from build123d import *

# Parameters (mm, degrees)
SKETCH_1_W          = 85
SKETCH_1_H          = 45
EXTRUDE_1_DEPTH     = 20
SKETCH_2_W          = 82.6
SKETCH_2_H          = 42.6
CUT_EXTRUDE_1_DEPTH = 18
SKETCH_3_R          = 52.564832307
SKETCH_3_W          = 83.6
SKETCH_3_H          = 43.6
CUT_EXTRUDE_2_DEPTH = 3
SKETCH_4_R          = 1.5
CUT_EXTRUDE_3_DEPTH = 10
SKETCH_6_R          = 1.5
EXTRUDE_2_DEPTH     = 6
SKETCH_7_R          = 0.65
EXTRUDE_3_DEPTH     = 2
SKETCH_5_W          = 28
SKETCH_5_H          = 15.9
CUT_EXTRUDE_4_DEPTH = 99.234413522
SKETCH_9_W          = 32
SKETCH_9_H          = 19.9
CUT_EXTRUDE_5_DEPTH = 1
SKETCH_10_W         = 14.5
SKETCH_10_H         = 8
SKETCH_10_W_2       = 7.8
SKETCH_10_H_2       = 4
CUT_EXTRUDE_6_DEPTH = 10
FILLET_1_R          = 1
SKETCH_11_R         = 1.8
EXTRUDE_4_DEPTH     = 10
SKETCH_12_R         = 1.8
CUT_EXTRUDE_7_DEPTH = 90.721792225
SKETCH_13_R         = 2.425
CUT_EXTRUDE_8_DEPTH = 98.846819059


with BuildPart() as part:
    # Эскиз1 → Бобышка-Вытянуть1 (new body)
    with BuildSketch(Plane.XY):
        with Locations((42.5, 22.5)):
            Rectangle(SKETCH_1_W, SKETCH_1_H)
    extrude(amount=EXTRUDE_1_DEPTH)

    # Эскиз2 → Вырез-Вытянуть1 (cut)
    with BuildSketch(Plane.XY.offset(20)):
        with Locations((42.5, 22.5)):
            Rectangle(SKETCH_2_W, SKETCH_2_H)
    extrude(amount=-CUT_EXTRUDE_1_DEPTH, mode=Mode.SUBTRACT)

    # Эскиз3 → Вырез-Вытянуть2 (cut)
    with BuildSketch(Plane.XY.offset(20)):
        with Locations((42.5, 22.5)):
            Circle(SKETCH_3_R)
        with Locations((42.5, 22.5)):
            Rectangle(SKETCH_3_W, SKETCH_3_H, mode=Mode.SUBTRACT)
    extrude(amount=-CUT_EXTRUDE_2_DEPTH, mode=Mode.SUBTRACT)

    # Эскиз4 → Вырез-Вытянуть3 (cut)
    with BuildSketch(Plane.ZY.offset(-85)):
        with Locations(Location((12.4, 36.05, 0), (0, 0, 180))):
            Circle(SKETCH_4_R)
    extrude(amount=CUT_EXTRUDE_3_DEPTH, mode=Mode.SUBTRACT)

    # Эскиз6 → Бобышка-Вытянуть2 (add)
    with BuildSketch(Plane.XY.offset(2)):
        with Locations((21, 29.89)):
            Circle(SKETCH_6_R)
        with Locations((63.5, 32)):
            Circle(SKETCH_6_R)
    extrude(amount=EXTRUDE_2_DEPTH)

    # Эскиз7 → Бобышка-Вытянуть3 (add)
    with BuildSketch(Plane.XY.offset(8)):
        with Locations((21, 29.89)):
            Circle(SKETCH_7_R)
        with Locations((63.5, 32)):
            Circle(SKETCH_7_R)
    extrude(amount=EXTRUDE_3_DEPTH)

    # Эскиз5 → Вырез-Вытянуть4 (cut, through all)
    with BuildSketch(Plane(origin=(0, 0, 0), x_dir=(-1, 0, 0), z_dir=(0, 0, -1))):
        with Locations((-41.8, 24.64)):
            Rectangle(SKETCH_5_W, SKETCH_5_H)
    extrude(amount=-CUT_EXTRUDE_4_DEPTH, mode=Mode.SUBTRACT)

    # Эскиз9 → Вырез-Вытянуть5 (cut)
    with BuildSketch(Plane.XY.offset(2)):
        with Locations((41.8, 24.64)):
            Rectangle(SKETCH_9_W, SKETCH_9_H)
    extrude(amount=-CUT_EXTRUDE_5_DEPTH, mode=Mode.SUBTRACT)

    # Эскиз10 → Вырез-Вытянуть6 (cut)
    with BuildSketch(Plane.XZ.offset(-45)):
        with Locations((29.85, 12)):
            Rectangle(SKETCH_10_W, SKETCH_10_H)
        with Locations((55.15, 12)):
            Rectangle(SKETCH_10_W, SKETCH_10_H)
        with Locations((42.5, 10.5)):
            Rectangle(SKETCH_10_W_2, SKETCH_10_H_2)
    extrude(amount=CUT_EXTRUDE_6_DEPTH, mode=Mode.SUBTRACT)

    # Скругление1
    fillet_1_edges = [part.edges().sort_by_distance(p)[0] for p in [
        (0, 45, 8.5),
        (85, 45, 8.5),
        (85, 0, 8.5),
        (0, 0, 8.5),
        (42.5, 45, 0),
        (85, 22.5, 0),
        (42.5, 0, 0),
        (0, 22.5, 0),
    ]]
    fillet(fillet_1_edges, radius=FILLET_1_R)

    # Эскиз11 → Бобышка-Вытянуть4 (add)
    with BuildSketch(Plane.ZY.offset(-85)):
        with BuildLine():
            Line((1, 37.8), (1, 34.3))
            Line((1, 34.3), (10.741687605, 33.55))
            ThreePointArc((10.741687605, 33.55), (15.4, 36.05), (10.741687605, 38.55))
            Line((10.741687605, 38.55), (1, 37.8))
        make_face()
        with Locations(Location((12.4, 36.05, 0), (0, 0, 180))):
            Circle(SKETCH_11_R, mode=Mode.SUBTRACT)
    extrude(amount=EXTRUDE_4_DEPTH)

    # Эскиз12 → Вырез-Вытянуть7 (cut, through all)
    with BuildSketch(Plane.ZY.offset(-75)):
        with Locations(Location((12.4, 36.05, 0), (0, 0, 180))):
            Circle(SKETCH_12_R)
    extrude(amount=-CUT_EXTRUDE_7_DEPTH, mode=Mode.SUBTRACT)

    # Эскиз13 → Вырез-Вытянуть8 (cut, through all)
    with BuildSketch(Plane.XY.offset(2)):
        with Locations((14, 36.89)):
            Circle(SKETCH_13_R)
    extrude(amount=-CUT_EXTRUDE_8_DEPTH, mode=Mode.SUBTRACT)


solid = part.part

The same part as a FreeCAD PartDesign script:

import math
import FreeCAD as App
import Part
import Sketcher
from FreeCAD import Vector


def edges_at(feature, points):
    """Names of the edges that pass closest to the given points."""
    edges = feature.Shape.Edges
    near = lambda p: min(range(len(edges)), key=lambda i: edges[i].distToShape(Part.Vertex(*p))[0])
    return sorted({f"Edge{near(p) + 1}" for p in points})

doc = App.newDocument("Part")
params = doc.addObject("Spreadsheet::Sheet", "Params")
for row, (alias, value) in enumerate([
    ("sketch1_width", "85 mm"),
    ("sketch1_height", "45 mm"),
    ("pad1_length", "20 mm"),
    ("sketch2_width", "82.6 mm"),
    ("sketch2_height", "42.6 mm"),
    ("pocket1_length", "18 mm"),
    ("sketch3_width", "83.6 mm"),
    ("sketch3_height", "43.6 mm"),
    ("pocket2_length", "3 mm"),
    ("sketch4_diameter", "3 mm"),
    ("pocket3_length", "10 mm"),
    ("sketch5_diameter", "3 mm"),
    ("pad2_length", "6 mm"),
    ("sketch6_diameter", "1.3 mm"),
    ("pad3_length", "2 mm"),
    ("sketch7_width", "28 mm"),
    ("sketch7_height", "15.9 mm"),
    ("sketch8_width", "32 mm"),
    ("sketch8_height", "19.9 mm"),
    ("pocket5_length", "1 mm"),
    ("sketch9_height", "8 mm"),
    ("sketch9_height2", "4 mm"),
    ("sketch9_width", "14.5 mm"),
    ("sketch9_width2", "7.8 mm"),
    ("pocket6_length", "10 mm"),
    ("fillet_radius", "1 mm"),
    ("sketch10_radius", "3 mm"),
    ("sketch10_diameter", "3.6 mm"),
    ("sketch10_width", "3.5 mm"),
    ("pad4_length", "10 mm"),
    ("sketch11_diameter", "3.6 mm"),
    ("sketch12_diameter", "4.85 mm"),
], start=1):
    params.set(f"A{row}", alias)
    params.set(f"B{row}", "=" + value)
    params.setAlias(f"B{row}", alias)

body = doc.addObject("PartDesign::Body", "Body")

# Sketch on XY plane
sketch1 = doc.addObject("Sketcher::SketchObject", "Sketch")
body.addObject(sketch1)
sketch1.AttachmentSupport = (doc.XY_Plane, [""])
sketch1.MapMode = "FlatFace"
sketch1.addGeometry(Part.LineSegment(Vector(0, 45, 0), Vector(0, 0, 0)), False)
sketch1.addGeometry(Part.LineSegment(Vector(0, 0, 0), Vector(85, 0, 0)), False)
sketch1.addGeometry(Part.LineSegment(Vector(85, 0, 0), Vector(85, 45, 0)), False)
sketch1.addGeometry(Part.LineSegment(Vector(85, 45, 0), Vector(0, 45, 0)), False)
sketch1.addConstraint(Sketcher.Constraint("Coincident", 0, 2, 1, 1))
sketch1.addConstraint(Sketcher.Constraint("Coincident", 1, 2, 2, 1))
sketch1.addConstraint(Sketcher.Constraint("Coincident", 2, 2, 3, 1))
sketch1.addConstraint(Sketcher.Constraint("Coincident", 3, 2, 0, 1))
sketch1.addConstraint(Sketcher.Constraint("Vertical", 0))
sketch1.addConstraint(Sketcher.Constraint("Horizontal", 1))
sketch1.addConstraint(Sketcher.Constraint("Vertical", 2))
sketch1.addConstraint(Sketcher.Constraint("Horizontal", 3))
sketch1.addConstraint(Sketcher.Constraint("Coincident", 0, 2, -1, 1))
sketch1.addConstraint(Sketcher.Constraint("DistanceX", 1, 1, 1, 2, 85.0))
sketch1.addConstraint(Sketcher.Constraint("DistanceY", 0, 2, 0, 1, 45.0))
sketch1.setExpression("Constraints[9]", "Params.sketch1_width")
sketch1.setExpression("Constraints[10]", "Params.sketch1_height")
pad1 = doc.addObject("PartDesign::Pad", "Pad")
body.addObject(pad1)
pad1.Profile = sketch1
pad1.setExpression("Length", "Params.pad1_length")

# Sketch on XY plane
sketch2 = doc.addObject("Sketcher::SketchObject", "Sketch001")
body.addObject(sketch2)
sketch2.AttachmentSupport = (doc.XY_Plane, [""])
sketch2.MapMode = "FlatFace"
sketch2.AttachmentOffset = App.Placement(Vector(0, 0, 20), App.Rotation())
sketch2.addGeometry(Part.LineSegment(Vector(1.2, 43.8, 0), Vector(1.2, 1.2, 0)), False)
sketch2.addGeometry(Part.LineSegment(Vector(1.2, 1.2, 0), Vector(83.8, 1.2, 0)), False)
sketch2.addGeometry(Part.LineSegment(Vector(83.8, 1.2, 0), Vector(83.8, 43.8, 0)), False)
sketch2.addGeometry(Part.LineSegment(Vector(83.8, 43.8, 0), Vector(1.2, 43.8, 0)), False)
sketch2.addConstraint(Sketcher.Constraint("Coincident", 0, 2, 1, 1))
sketch2.addConstraint(Sketcher.Constraint("Coincident", 1, 2, 2, 1))
sketch2.addConstraint(Sketcher.Constraint("Coincident", 2, 2, 3, 1))
sketch2.addConstraint(Sketcher.Constraint("Coincident", 3, 2, 0, 1))
sketch2.addConstraint(Sketcher.Constraint("Vertical", 0))
sketch2.addConstraint(Sketcher.Constraint("Horizontal", 1))
sketch2.addConstraint(Sketcher.Constraint("Vertical", 2))
sketch2.addConstraint(Sketcher.Constraint("Horizontal", 3))
sketch2.addConstraint(Sketcher.Constraint("DistanceX", 1, 1, 1, 2, 82.6))
sketch2.addConstraint(Sketcher.Constraint("DistanceY", 0, 2, 0, 1, 42.6))
sketch2.addConstraint(Sketcher.Constraint("DistanceX", -1, 1, 0, 2, 1.2))
sketch2.addConstraint(Sketcher.Constraint("DistanceY", -1, 1, 0, 2, 1.2))
sketch2.setExpression("Constraints[8]", "Params.sketch2_width")
sketch2.setExpression("Constraints[9]", "Params.sketch2_height")
pocket1 = doc.addObject("PartDesign::Pocket", "Pocket")
body.addObject(pocket1)
pocket1.Profile = sketch2
pocket1.setExpression("Length", "Params.pocket1_length")

# Sketch on XY plane
sketch3 = doc.addObject("Sketcher::SketchObject", "Sketch002")
body.addObject(sketch3)
sketch3.AttachmentSupport = (doc.XY_Plane, [""])
sketch3.MapMode = "FlatFace"
sketch3.AttachmentOffset = App.Placement(Vector(0, 0, 20), App.Rotation())
sketch3.addGeometry(Part.Circle(Vector(42.5, 22.5, 0), Vector(0, 0, 1), 52.564832), False)
sketch3.addGeometry(Part.LineSegment(Vector(84.3, 0.7, 0), Vector(0.7, 0.7, 0)), False)
sketch3.addGeometry(Part.LineSegment(Vector(0.7, 0.7, 0), Vector(0.7, 44.3, 0)), False)
sketch3.addGeometry(Part.LineSegment(Vector(0.7, 44.3, 0), Vector(84.3, 44.3, 0)), False)
sketch3.addGeometry(Part.LineSegment(Vector(84.3, 44.3, 0), Vector(84.3, 0.7, 0)), False)
sketch3.addConstraint(Sketcher.Constraint("Coincident", 1, 2, 2, 1))
sketch3.addConstraint(Sketcher.Constraint("Coincident", 2, 2, 3, 1))
sketch3.addConstraint(Sketcher.Constraint("Coincident", 3, 2, 4, 1))
sketch3.addConstraint(Sketcher.Constraint("Coincident", 4, 2, 1, 1))
sketch3.addConstraint(Sketcher.Constraint("Horizontal", 1))
sketch3.addConstraint(Sketcher.Constraint("Vertical", 2))
sketch3.addConstraint(Sketcher.Constraint("Horizontal", 3))
sketch3.addConstraint(Sketcher.Constraint("Vertical", 4))
sketch3.addConstraint(Sketcher.Constraint("DistanceX", 1, 2, 1, 1, 83.6))
sketch3.addConstraint(Sketcher.Constraint("DistanceY", 2, 1, 2, 2, 43.6))
sketch3.addConstraint(Sketcher.Constraint("DistanceX", -1, 1, 0, 3, 42.5))
sketch3.addConstraint(Sketcher.Constraint("DistanceY", -1, 1, 0, 3, 22.5))
sketch3.addConstraint(Sketcher.Constraint("DistanceX", -1, 1, 1, 2, 0.7))
sketch3.addConstraint(Sketcher.Constraint("DistanceY", -1, 1, 1, 2, 0.7))
sketch3.addConstraint(Sketcher.Constraint("Diameter", 0, 105.129665))
sketch3.setExpression("Constraints[8]", "Params.sketch3_width")
sketch3.setExpression("Constraints[9]", "Params.sketch3_height")
pocket2 = doc.addObject("PartDesign::Pocket", "Pocket001")
body.addObject(pocket2)
pocket2.Profile = sketch3
pocket2.setExpression("Length", "Params.pocket2_length")

# Sketch on YZ plane
sketch4 = doc.addObject("Sketcher::SketchObject", "Sketch003")
body.addObject(sketch4)
sketch4.AttachmentSupport = (doc.YZ_Plane, [""])
sketch4.MapMode = "FlatFace"
sketch4.AttachmentOffset = App.Placement(Vector(0, 0, 85), App.Rotation())
sketch4.addGeometry(Part.Circle(Vector(36.05, 12.4, 0), Vector(0, 0, 1), 1.5), False)
sketch4.addConstraint(Sketcher.Constraint("Diameter", 0, 3.0))
sketch4.addConstraint(Sketcher.Constraint("DistanceY", -1, 1, 0, 3, 12.4))
sketch4.addConstraint(Sketcher.Constraint("DistanceX", -1, 1, 0, 3, 36.05))
sketch4.setExpression("Constraints[0]", "Params.sketch4_diameter")
pocket3 = doc.addObject("PartDesign::Pocket", "Pocket002")
body.addObject(pocket3)
pocket3.Profile = sketch4
pocket3.setExpression("Length", "Params.pocket3_length")

# Sketch on XY plane
sketch5 = doc.addObject("Sketcher::SketchObject", "Sketch004")
body.addObject(sketch5)
sketch5.AttachmentSupport = (doc.XY_Plane, [""])
sketch5.MapMode = "FlatFace"
sketch5.AttachmentOffset = App.Placement(Vector(0, 0, 2), App.Rotation())
sketch5.addGeometry(Part.Circle(Vector(21, 29.89, 0), Vector(0, 0, 1), 1.5), False)
sketch5.addGeometry(Part.Circle(Vector(63.5, 32, 0), Vector(0, 0, 1), 1.5), False)
sketch5.addConstraint(Sketcher.Constraint("Equal", 0, 1))
sketch5.addConstraint(Sketcher.Constraint("Diameter", 0, 3.0))
sketch5.addConstraint(Sketcher.Constraint("DistanceX", -1, 1, 0, 3, 21.0))
sketch5.addConstraint(Sketcher.Constraint("DistanceY", -1, 1, 1, 3, 32.0))
sketch5.addConstraint(Sketcher.Constraint("DistanceX", -1, 1, 1, 3, 63.5))
sketch5.addConstraint(Sketcher.Constraint("DistanceY", -1, 1, 0, 3, 29.89))
sketch5.setExpression("Constraints[1]", "Params.sketch5_diameter")
pad2 = doc.addObject("PartDesign::Pad", "Pad001")
body.addObject(pad2)
pad2.Profile = sketch5
pad2.setExpression("Length", "Params.pad2_length")

# Sketch on XY plane
sketch6 = doc.addObject("Sketcher::SketchObject", "Sketch005")
body.addObject(sketch6)
sketch6.AttachmentSupport = (doc.XY_Plane, [""])
sketch6.MapMode = "FlatFace"
sketch6.AttachmentOffset = App.Placement(Vector(0, 0, 8), App.Rotation())
sketch6.addGeometry(Part.Circle(Vector(21, 29.89, 0), Vector(0, 0, 1), 0.65), False)
sketch6.addGeometry(Part.Circle(Vector(63.5, 32, 0), Vector(0, 0, 1), 0.65), False)
sketch6.addConstraint(Sketcher.Constraint("Equal", 0, 1))
sketch6.addConstraint(Sketcher.Constraint("Diameter", 0, 1.3))
sketch6.addConstraint(Sketcher.Constraint("DistanceX", -1, 1, 0, 3, 21.0))
sketch6.addConstraint(Sketcher.Constraint("DistanceY", -1, 1, 1, 3, 32.0))
sketch6.addConstraint(Sketcher.Constraint("DistanceX", -1, 1, 1, 3, 63.5))
sketch6.addConstraint(Sketcher.Constraint("DistanceY", -1, 1, 0, 3, 29.89))
sketch6.setExpression("Constraints[1]", "Params.sketch6_diameter")
pad3 = doc.addObject("PartDesign::Pad", "Pad002")
body.addObject(pad3)
pad3.Profile = sketch6
pad3.setExpression("Length", "Params.pad3_length")

# Sketch on XY plane
sketch7 = doc.addObject("Sketcher::SketchObject", "Sketch006")
body.addObject(sketch7)
sketch7.AttachmentSupport = (doc.XY_Plane, [""])
sketch7.MapMode = "FlatFace"
sketch7.addGeometry(Part.LineSegment(Vector(55.8, 32.59, 0), Vector(55.8, 16.69, 0)), False)
sketch7.addGeometry(Part.LineSegment(Vector(55.8, 16.69, 0), Vector(27.8, 16.69, 0)), False)
sketch7.addGeometry(Part.LineSegment(Vector(27.8, 16.69, 0), Vector(27.8, 32.59, 0)), False)
sketch7.addGeometry(Part.LineSegment(Vector(27.8, 32.59, 0), Vector(55.8, 32.59, 0)), False)
sketch7.addConstraint(Sketcher.Constraint("Coincident", 0, 2, 1, 1))
sketch7.addConstraint(Sketcher.Constraint("Coincident", 1, 2, 2, 1))
sketch7.addConstraint(Sketcher.Constraint("Coincident", 2, 2, 3, 1))
sketch7.addConstraint(Sketcher.Constraint("Coincident", 3, 2, 0, 1))
sketch7.addConstraint(Sketcher.Constraint("Vertical", 0))
sketch7.addConstraint(Sketcher.Constraint("Horizontal", 1))
sketch7.addConstraint(Sketcher.Constraint("Vertical", 2))
sketch7.addConstraint(Sketcher.Constraint("Horizontal", 3))
sketch7.addConstraint(Sketcher.Constraint("DistanceX", 1, 2, 1, 1, 28.0))
sketch7.addConstraint(Sketcher.Constraint("DistanceY", 0, 2, 0, 1, 15.9))
sketch7.addConstraint(Sketcher.Constraint("DistanceX", -1, 1, 0, 2, 55.8))
sketch7.addConstraint(Sketcher.Constraint("DistanceY", -1, 1, 0, 2, 16.69))
sketch7.setExpression("Constraints[8]", "Params.sketch7_width")
sketch7.setExpression("Constraints[9]", "Params.sketch7_height")
pocket4 = doc.addObject("PartDesign::Pocket", "Pocket003")
body.addObject(pocket4)
pocket4.Profile = sketch7
pocket4.Type = "ThroughAll"
pocket4.Reversed = True

# Sketch on XY plane
sketch8 = doc.addObject("Sketcher::SketchObject", "Sketch007")
body.addObject(sketch8)
sketch8.AttachmentSupport = (doc.XY_Plane, [""])
sketch8.MapMode = "FlatFace"
sketch8.AttachmentOffset = App.Placement(Vector(0, 0, 2), App.Rotation())
sketch8.addGeometry(Part.LineSegment(Vector(25.8, 34.59, 0), Vector(25.8, 14.69, 0)), False)
sketch8.addGeometry(Part.LineSegment(Vector(25.8, 14.69, 0), Vector(57.8, 14.69, 0)), False)
sketch8.addGeometry(Part.LineSegment(Vector(57.8, 14.69, 0), Vector(57.8, 34.59, 0)), False)
sketch8.addGeometry(Part.LineSegment(Vector(57.8, 34.59, 0), Vector(25.8, 34.59, 0)), False)
sketch8.addConstraint(Sketcher.Constraint("Coincident", 0, 2, 1, 1))
sketch8.addConstraint(Sketcher.Constraint("Coincident", 1, 2, 2, 1))
sketch8.addConstraint(Sketcher.Constraint("Coincident", 2, 2, 3, 1))
sketch8.addConstraint(Sketcher.Constraint("Coincident", 3, 2, 0, 1))
sketch8.addConstraint(Sketcher.Constraint("Vertical", 0))
sketch8.addConstraint(Sketcher.Constraint("Horizontal", 1))
sketch8.addConstraint(Sketcher.Constraint("Vertical", 2))
sketch8.addConstraint(Sketcher.Constraint("Horizontal", 3))
sketch8.addConstraint(Sketcher.Constraint("DistanceX", 1, 1, 1, 2, 32.0))
sketch8.addConstraint(Sketcher.Constraint("DistanceY", 0, 2, 0, 1, 19.9))
sketch8.addConstraint(Sketcher.Constraint("DistanceX", -1, 1, 0, 2, 25.8))
sketch8.addConstraint(Sketcher.Constraint("DistanceY", -1, 1, 0, 2, 14.69))
sketch8.setExpression("Constraints[8]", "Params.sketch8_width")
sketch8.setExpression("Constraints[9]", "Params.sketch8_height")
pocket5 = doc.addObject("PartDesign::Pocket", "Pocket004")
body.addObject(pocket5)
pocket5.Profile = sketch8
pocket5.setExpression("Length", "Params.pocket5_length")

# Sketch on XZ plane
sketch9 = doc.addObject("Sketcher::SketchObject", "Sketch008")
body.addObject(sketch9)
sketch9.AttachmentSupport = (doc.XZ_Plane, [""])
sketch9.MapMode = "FlatFace"
sketch9.AttachmentOffset = App.Placement(Vector(0, 0, -45), App.Rotation())
sketch9.addGeometry(Part.LineSegment(Vector(22.6, 16, 0), Vector(22.6, 8, 0)), False)
sketch9.addGeometry(Part.LineSegment(Vector(22.6, 8, 0), Vector(37.1, 8, 0)), False)
sketch9.addGeometry(Part.LineSegment(Vector(37.1, 8, 0), Vector(37.1, 16, 0)), False)
sketch9.addGeometry(Part.LineSegment(Vector(37.1, 16, 0), Vector(22.6, 16, 0)), False)
sketch9.addGeometry(Part.LineSegment(Vector(47.9, 16, 0), Vector(47.9, 8, 0)), False)
sketch9.addGeometry(Part.LineSegment(Vector(47.9, 8, 0), Vector(62.4, 8, 0)), False)
sketch9.addGeometry(Part.LineSegment(Vector(62.4, 8, 0), Vector(62.4, 16, 0)), False)
sketch9.addGeometry(Part.LineSegment(Vector(62.4, 16, 0), Vector(47.9, 16, 0)), False)
sketch9.addGeometry(Part.LineSegment(Vector(38.6, 12.5, 0), Vector(38.6, 8.5, 0)), False)
sketch9.addGeometry(Part.LineSegment(Vector(38.6, 8.5, 0), Vector(46.4, 8.5, 0)), False)
sketch9.addGeometry(Part.LineSegment(Vector(46.4, 8.5, 0), Vector(46.4, 12.5, 0)), False)
sketch9.addGeometry(Part.LineSegment(Vector(46.4, 12.5, 0), Vector(38.6, 12.5, 0)), False)
sketch9.addConstraint(Sketcher.Constraint("Coincident", 0, 2, 1, 1))
sketch9.addConstraint(Sketcher.Constraint("Coincident", 1, 2, 2, 1))
sketch9.addConstraint(Sketcher.Constraint("Coincident", 2, 2, 3, 1))
sketch9.addConstraint(Sketcher.Constraint("Coincident", 3, 2, 0, 1))
sketch9.addConstraint(Sketcher.Constraint("Coincident", 4, 2, 5, 1))
sketch9.addConstraint(Sketcher.Constraint("Coincident", 5, 2, 6, 1))
sketch9.addConstraint(Sketcher.Constraint("Coincident", 6, 2, 7, 1))
sketch9.addConstraint(Sketcher.Constraint("Coincident", 7, 2, 4, 1))
sketch9.addConstraint(Sketcher.Constraint("Coincident", 8, 2, 9, 1))
sketch9.addConstraint(Sketcher.Constraint("Coincident", 9, 2, 10, 1))
sketch9.addConstraint(Sketcher.Constraint("Coincident", 10, 2, 11, 1))
sketch9.addConstraint(Sketcher.Constraint("Coincident", 11, 2, 8, 1))
sketch9.addConstraint(Sketcher.Constraint("Vertical", 0))
sketch9.addConstraint(Sketcher.Constraint("Horizontal", 1))
sketch9.addConstraint(Sketcher.Constraint("Vertical", 2))
sketch9.addConstraint(Sketcher.Constraint("Horizontal", 3))
sketch9.addConstraint(Sketcher.Constraint("Vertical", 4))
sketch9.addConstraint(Sketcher.Constraint("Horizontal", 5))
sketch9.addConstraint(Sketcher.Constraint("Vertical", 6))
sketch9.addConstraint(Sketcher.Constraint("Horizontal", 7))
sketch9.addConstraint(Sketcher.Constraint("Vertical", 8))
sketch9.addConstraint(Sketcher.Constraint("Horizontal", 9))
sketch9.addConstraint(Sketcher.Constraint("Vertical", 10))
sketch9.addConstraint(Sketcher.Constraint("Horizontal", 11))
sketch9.addConstraint(Sketcher.Constraint("Horizontal", 1, 2, 4, 2))
sketch9.addConstraint(Sketcher.Constraint("Horizontal", 3, 2, 6, 2))
sketch9.addConstraint(Sketcher.Constraint("Equal", 3, 5))
sketch9.addConstraint(Sketcher.Constraint("DistanceY", 0, 2, 0, 1, 8.0))
sketch9.addConstraint(Sketcher.Constraint("DistanceY", 8, 2, 8, 1, 4.0))
sketch9.addConstraint(Sketcher.Constraint("DistanceX", 1, 1, 1, 2, 14.5))
sketch9.addConstraint(Sketcher.Constraint("DistanceX", 9, 1, 9, 2, 7.8))
sketch9.addConstraint(Sketcher.Constraint("DistanceY", -1, 1, 0, 2, 8.0))
sketch9.addConstraint(Sketcher.Constraint("DistanceX", 0, 2, 8, 2, 16.0))
sketch9.addConstraint(Sketcher.Constraint("DistanceX", -1, 1, 0, 2, 22.6))
sketch9.addConstraint(Sketcher.Constraint("DistanceX", -1, 1, 4, 2, 47.9))
sketch9.addConstraint(Sketcher.Constraint("DistanceY", -1, 1, 8, 2, 8.5))
sketch9.setExpression("Constraints[27]", "Params.sketch9_height")
sketch9.setExpression("Constraints[28]", "Params.sketch9_height2")
sketch9.setExpression("Constraints[29]", "Params.sketch9_width")
sketch9.setExpression("Constraints[30]", "Params.sketch9_width2")
pocket6 = doc.addObject("PartDesign::Pocket", "Pocket005")
body.addObject(pocket6)
pocket6.Profile = sketch9
pocket6.setExpression("Length", "Params.pocket6_length")
pocket6.Reversed = True
doc.recompute()

fillet = doc.addObject("PartDesign::Fillet", "Fillet")
body.addObject(fillet)
fillet.Base = (pocket6, edges_at(pocket6, [
    (0, 45, 8.5),
    (85, 45, 8.5),
    (85, 0, 8.5),
    (0, 0, 8.5),
    (42.5, 45, 0),
    (85, 22.5, 0),
    (42.5, 0, 0),
    (0, 22.5, 0),
]))
fillet.setExpression("Radius", "Params.fillet_radius")

# Sketch on YZ plane
sketch10 = doc.addObject("Sketcher::SketchObject", "Sketch009")
body.addObject(sketch10)
sketch10.AttachmentSupport = (doc.YZ_Plane, [""])
sketch10.MapMode = "FlatFace"
sketch10.AttachmentOffset = App.Placement(Vector(0, 0, 85), App.Rotation())
sketch10.addGeometry(Part.LineSegment(Vector(37.8, 1, 0), Vector(34.3, 1, 0)), False)
sketch10.addGeometry(Part.LineSegment(Vector(34.3, 1, 0), Vector(33.55, 10.741688, 0)), False)
sketch10.addGeometry(Part.ArcOfCircle(Part.Circle(Vector(36.05, 12.4, 0), Vector(0, 0, 1), 3), math.radians(-33.55731), math.radians(213.55731)), False)
sketch10.addGeometry(Part.LineSegment(Vector(38.55, 10.741688, 0), Vector(37.8, 1, 0)), False)
sketch10.addGeometry(Part.Circle(Vector(36.05, 12.4, 0), Vector(0, 0, 1), 1.8), False)
sketch10.addConstraint(Sketcher.Constraint("Coincident", 0, 2, 1, 1))
sketch10.addConstraint(Sketcher.Constraint("Coincident", 1, 2, 2, 2))
sketch10.addConstraint(Sketcher.Constraint("Coincident", 2, 1, 3, 1))
sketch10.addConstraint(Sketcher.Constraint("Coincident", 3, 2, 0, 1))
sketch10.addConstraint(Sketcher.Constraint("Horizontal", 0))
sketch10.addConstraint(Sketcher.Constraint("Coincident", 4, 3, 2, 3))
sketch10.addConstraint(Sketcher.Constraint("Horizontal", 1, 2, 2, 1))
sketch10.addConstraint(Sketcher.Constraint("Equal", 1, 3))
sketch10.addConstraint(Sketcher.Constraint("Radius", 2, 3.0))
sketch10.addConstraint(Sketcher.Constraint("Diameter", 4, 3.6))
sketch10.addConstraint(Sketcher.Constraint("DistanceX", 0, 2, 0, 1, 3.5))
sketch10.addConstraint(Sketcher.Constraint("DistanceY", -1, 1, 0, 2, 1.0))
sketch10.addConstraint(Sketcher.Constraint("DistanceX", 1, 2, 2, 1, 5.0))
sketch10.addConstraint(Sketcher.Constraint("DistanceY", -1, 1, 2, 3, 12.4))
sketch10.addConstraint(Sketcher.Constraint("DistanceX", -1, 1, 0, 2, 34.3))
sketch10.setExpression("Constraints[8]", "Params.sketch10_radius")
sketch10.setExpression("Constraints[9]", "Params.sketch10_diameter")
sketch10.setExpression("Constraints[10]", "Params.sketch10_width")
pad4 = doc.addObject("PartDesign::Pad", "Pad003")
body.addObject(pad4)
pad4.Profile = sketch10
pad4.setExpression("Length", "Params.pad4_length")
pad4.Reversed = True

# Sketch on YZ plane
sketch11 = doc.addObject("Sketcher::SketchObject", "Sketch010")
body.addObject(sketch11)
sketch11.AttachmentSupport = (doc.YZ_Plane, [""])
sketch11.MapMode = "FlatFace"
sketch11.AttachmentOffset = App.Placement(Vector(0, 0, 75), App.Rotation())
sketch11.addGeometry(Part.Circle(Vector(36.05, 12.4, 0), Vector(0, 0, 1), 1.8), False)
sketch11.addConstraint(Sketcher.Constraint("Diameter", 0, 3.6))
sketch11.addConstraint(Sketcher.Constraint("DistanceY", -1, 1, 0, 3, 12.4))
sketch11.addConstraint(Sketcher.Constraint("DistanceX", -1, 1, 0, 3, 36.05))
sketch11.setExpression("Constraints[0]", "Params.sketch11_diameter")
pocket7 = doc.addObject("PartDesign::Pocket", "Pocket006")
body.addObject(pocket7)
pocket7.Profile = sketch11
pocket7.Type = "ThroughAll"
pocket7.Reversed = True

# Sketch on XY plane
sketch12 = doc.addObject("Sketcher::SketchObject", "Sketch011")
body.addObject(sketch12)
sketch12.AttachmentSupport = (doc.XY_Plane, [""])
sketch12.MapMode = "FlatFace"
sketch12.AttachmentOffset = App.Placement(Vector(0, 0, 2), App.Rotation())
sketch12.addGeometry(Part.Circle(Vector(14, 36.89, 0), Vector(0, 0, 1), 2.425), False)
sketch12.addConstraint(Sketcher.Constraint("Diameter", 0, 4.85))
sketch12.addConstraint(Sketcher.Constraint("DistanceX", -1, 1, 0, 3, 14.0))
sketch12.addConstraint(Sketcher.Constraint("DistanceY", -1, 1, 0, 3, 36.89))
sketch12.setExpression("Constraints[0]", "Params.sketch12_diameter")
pocket8 = doc.addObject("PartDesign::Pocket", "Pocket007")
body.addObject(pocket8)
pocket8.Profile = sketch12
pocket8.Type = "ThroughAll"

doc.recompute()
